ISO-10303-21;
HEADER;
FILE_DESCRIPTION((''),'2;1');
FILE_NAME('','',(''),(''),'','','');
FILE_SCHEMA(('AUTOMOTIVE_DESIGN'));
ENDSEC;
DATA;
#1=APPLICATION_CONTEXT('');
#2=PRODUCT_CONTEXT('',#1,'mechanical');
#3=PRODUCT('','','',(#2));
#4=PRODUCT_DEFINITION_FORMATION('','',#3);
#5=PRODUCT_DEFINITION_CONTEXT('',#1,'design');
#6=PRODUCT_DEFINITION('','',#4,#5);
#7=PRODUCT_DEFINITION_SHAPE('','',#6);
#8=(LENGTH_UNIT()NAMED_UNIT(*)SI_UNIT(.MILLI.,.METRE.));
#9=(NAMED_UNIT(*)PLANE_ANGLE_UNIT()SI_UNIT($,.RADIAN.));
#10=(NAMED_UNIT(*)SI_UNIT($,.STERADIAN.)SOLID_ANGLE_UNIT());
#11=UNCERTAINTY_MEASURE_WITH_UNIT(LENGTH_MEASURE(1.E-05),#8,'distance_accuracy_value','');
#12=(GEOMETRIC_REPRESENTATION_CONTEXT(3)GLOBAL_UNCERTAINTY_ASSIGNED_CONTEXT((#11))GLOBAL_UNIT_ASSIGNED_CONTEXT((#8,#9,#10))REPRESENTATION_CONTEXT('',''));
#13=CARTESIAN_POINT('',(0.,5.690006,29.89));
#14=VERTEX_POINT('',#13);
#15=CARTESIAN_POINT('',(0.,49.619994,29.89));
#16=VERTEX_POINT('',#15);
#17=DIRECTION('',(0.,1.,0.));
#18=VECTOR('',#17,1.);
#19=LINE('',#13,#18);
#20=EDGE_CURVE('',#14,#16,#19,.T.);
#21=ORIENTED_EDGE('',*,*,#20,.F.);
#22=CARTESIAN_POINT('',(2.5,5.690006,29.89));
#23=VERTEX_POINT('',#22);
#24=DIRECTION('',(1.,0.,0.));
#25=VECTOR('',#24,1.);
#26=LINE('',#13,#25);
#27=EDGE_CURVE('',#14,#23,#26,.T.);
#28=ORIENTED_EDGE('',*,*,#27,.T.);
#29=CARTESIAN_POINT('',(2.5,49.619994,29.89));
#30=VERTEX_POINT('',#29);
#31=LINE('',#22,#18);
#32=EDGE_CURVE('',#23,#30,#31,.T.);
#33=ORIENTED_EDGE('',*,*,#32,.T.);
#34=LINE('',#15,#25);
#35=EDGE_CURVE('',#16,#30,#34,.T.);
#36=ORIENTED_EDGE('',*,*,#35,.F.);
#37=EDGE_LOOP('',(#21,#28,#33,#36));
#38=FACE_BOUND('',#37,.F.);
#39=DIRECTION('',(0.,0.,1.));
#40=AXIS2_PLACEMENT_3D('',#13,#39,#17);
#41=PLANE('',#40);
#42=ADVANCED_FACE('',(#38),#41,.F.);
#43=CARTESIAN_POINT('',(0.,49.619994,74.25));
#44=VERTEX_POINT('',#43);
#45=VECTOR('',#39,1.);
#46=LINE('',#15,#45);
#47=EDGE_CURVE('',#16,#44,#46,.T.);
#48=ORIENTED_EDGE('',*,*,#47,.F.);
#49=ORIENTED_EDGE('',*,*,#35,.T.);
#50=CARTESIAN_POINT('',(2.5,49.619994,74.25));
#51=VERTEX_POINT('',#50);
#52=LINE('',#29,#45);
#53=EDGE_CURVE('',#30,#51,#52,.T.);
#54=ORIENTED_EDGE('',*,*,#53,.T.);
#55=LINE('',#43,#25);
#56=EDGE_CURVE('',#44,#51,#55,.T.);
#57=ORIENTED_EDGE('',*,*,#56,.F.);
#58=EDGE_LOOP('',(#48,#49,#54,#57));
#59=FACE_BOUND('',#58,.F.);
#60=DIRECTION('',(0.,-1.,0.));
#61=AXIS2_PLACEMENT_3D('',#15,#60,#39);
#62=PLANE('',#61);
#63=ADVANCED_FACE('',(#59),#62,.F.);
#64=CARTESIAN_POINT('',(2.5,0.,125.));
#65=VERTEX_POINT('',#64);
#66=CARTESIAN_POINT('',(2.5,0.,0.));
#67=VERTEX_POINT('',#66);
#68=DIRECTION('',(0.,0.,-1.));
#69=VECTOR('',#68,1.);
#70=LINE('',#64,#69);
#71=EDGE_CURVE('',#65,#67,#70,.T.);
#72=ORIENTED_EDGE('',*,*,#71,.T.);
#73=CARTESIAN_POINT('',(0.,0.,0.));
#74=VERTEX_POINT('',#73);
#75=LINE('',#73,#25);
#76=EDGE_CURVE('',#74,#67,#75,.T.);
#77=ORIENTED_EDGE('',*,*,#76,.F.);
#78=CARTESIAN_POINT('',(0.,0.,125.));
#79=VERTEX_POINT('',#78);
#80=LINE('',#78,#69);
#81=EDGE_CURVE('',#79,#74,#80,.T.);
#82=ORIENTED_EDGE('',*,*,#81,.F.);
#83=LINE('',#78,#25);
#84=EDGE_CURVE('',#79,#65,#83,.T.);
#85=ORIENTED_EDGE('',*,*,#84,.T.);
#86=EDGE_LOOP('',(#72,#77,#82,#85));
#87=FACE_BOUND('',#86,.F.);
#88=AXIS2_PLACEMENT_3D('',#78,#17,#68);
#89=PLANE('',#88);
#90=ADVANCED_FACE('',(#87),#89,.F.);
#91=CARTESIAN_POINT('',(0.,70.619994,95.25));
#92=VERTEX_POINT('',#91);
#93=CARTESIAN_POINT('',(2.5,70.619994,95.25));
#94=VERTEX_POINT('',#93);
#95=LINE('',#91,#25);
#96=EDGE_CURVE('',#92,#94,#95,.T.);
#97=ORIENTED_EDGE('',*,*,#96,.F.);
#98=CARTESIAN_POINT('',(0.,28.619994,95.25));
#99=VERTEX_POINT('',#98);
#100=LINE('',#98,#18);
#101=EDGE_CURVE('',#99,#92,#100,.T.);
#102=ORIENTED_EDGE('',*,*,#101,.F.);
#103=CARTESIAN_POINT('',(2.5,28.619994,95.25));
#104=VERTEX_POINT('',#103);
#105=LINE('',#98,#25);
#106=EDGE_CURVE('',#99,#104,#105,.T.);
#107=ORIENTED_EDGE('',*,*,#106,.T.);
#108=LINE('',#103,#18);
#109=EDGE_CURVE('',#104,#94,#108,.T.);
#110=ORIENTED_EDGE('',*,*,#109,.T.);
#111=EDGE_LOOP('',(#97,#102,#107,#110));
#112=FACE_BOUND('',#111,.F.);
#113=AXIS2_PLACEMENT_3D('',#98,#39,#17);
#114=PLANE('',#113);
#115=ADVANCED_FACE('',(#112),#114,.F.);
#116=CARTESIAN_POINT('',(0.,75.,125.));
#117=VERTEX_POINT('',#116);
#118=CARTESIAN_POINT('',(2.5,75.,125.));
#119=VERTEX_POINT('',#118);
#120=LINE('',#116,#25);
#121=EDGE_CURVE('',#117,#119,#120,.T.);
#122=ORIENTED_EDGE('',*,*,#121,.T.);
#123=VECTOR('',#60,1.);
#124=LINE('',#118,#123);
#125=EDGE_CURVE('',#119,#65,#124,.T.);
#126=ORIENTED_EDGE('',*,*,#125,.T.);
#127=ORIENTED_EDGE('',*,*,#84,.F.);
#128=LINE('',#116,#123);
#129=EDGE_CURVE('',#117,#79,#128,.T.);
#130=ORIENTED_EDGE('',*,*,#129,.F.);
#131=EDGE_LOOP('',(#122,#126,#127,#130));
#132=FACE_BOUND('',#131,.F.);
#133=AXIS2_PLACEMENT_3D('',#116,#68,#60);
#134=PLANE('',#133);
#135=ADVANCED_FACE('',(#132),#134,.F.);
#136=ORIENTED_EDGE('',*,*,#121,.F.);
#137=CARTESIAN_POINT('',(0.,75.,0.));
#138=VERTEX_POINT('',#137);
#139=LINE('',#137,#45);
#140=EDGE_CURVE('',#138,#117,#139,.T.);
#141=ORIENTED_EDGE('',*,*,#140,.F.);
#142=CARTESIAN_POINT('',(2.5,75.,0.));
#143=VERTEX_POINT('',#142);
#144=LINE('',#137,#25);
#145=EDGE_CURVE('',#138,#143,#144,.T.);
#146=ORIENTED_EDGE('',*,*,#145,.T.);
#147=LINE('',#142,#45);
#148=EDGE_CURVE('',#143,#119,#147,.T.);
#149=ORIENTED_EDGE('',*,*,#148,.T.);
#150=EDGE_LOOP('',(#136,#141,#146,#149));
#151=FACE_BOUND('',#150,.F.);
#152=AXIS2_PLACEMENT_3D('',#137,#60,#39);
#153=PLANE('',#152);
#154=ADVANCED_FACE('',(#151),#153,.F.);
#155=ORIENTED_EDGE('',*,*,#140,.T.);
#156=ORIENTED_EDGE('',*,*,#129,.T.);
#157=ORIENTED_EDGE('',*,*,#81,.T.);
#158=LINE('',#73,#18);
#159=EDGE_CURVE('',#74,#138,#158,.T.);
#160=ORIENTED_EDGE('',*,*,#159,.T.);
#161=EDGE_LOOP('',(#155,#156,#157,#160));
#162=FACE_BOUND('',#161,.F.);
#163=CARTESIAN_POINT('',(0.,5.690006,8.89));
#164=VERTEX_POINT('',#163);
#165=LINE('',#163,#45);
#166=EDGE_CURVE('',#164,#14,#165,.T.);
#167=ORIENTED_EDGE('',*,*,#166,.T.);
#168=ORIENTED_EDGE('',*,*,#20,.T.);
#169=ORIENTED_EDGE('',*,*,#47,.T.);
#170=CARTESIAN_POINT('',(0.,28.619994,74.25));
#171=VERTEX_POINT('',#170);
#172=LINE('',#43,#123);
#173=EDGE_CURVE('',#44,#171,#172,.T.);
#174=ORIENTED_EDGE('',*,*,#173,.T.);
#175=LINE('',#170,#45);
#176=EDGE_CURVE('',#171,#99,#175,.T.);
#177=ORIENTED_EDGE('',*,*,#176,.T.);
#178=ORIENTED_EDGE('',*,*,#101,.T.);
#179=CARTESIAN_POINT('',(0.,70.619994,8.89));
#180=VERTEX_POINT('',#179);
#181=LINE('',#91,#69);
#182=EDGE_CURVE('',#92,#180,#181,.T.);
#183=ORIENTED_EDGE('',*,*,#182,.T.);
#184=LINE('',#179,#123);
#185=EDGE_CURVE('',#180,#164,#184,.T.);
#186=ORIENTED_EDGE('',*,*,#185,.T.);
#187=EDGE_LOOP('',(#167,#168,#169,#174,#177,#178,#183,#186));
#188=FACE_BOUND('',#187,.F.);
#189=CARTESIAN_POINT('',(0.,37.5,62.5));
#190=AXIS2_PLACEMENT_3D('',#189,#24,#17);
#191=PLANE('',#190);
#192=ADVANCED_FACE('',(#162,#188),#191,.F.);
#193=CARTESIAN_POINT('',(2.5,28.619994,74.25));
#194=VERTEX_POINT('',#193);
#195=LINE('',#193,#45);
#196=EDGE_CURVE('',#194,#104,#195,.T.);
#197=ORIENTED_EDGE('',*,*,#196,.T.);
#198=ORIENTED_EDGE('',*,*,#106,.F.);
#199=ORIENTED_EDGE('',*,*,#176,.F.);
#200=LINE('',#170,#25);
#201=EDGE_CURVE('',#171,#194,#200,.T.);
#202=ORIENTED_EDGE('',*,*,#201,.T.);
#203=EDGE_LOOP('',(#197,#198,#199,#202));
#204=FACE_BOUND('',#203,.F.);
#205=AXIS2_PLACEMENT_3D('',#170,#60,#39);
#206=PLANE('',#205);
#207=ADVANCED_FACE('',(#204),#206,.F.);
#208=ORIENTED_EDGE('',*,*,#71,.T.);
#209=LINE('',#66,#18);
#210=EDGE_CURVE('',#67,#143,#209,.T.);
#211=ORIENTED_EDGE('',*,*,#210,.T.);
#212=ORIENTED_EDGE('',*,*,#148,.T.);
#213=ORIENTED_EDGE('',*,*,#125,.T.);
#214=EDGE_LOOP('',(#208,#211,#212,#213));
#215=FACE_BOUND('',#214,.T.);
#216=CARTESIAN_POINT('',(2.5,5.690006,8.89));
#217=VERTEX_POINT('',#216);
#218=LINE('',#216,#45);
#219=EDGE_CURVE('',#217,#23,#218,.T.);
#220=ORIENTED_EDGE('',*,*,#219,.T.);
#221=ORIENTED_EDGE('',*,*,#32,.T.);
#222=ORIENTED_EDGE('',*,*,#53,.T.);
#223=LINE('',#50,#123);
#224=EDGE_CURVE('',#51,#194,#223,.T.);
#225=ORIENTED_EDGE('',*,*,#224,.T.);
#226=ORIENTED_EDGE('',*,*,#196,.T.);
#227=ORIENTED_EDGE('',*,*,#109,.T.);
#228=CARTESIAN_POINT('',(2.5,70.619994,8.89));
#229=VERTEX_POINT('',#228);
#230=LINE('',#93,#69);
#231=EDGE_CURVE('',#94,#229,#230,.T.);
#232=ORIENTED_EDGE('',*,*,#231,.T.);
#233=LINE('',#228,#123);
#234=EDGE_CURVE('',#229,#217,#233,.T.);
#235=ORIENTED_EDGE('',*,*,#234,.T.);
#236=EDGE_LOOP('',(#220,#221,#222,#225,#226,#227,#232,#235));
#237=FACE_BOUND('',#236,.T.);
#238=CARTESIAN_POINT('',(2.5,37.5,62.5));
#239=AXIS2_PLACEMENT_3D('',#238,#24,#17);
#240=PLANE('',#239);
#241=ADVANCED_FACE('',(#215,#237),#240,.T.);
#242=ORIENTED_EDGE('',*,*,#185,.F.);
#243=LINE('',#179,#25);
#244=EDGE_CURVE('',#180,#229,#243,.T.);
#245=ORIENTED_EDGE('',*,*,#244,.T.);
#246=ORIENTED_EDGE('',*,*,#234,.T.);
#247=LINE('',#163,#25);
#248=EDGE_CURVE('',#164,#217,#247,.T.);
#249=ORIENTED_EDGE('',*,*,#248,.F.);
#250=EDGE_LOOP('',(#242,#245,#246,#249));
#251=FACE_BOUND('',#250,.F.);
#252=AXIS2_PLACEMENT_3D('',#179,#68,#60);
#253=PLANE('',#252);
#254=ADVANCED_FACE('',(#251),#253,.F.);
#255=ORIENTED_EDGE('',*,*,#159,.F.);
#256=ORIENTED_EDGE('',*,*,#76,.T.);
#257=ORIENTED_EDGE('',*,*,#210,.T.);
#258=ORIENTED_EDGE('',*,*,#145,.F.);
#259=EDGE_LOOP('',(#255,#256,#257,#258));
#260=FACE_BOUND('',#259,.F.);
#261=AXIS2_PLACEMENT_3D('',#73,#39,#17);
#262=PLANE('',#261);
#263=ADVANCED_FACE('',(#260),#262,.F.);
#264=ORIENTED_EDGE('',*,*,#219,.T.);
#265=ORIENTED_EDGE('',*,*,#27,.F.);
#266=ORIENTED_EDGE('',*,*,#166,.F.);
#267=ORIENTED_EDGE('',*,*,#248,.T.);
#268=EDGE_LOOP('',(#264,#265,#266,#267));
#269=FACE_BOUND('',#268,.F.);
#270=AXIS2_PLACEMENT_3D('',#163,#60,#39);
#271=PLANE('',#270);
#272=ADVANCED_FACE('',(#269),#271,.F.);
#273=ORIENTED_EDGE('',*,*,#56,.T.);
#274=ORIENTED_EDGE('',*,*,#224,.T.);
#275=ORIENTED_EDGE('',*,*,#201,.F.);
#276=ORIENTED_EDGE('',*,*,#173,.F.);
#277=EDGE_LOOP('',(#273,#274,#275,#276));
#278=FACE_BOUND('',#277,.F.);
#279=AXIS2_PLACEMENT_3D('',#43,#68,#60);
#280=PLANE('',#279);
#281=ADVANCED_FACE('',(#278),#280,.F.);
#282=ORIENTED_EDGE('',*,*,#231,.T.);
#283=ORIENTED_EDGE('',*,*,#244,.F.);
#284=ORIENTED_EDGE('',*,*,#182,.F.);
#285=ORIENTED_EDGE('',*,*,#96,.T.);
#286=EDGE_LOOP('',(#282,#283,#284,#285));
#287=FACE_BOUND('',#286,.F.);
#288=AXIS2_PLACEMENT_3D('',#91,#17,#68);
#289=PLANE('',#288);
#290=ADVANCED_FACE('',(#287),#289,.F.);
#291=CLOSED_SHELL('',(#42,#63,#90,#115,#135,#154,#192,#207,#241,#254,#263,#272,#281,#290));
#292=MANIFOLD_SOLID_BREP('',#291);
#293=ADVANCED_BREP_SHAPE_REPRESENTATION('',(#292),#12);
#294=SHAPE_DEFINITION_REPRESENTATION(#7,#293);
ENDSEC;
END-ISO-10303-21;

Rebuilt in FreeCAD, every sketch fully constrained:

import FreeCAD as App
import Part
import Sketcher

V = App.Vector

doc = App.newDocument("Part")
body = doc.addObject("PartDesign::Body", "Body")

# Sketch on YZ plane
sketch1 = doc.addObject("Sketcher::SketchObject", "Sketch")
body.addObject(sketch1)
sketch1.AttachmentSupport = (doc.YZ_Plane, [""])
sketch1.MapMode = "FlatFace"
sketch1.addGeometry([
    Part.LineSegment(V(0, 125, 0), V(0, 0, 0)),  # 0
    Part.LineSegment(V(0, 0, 0), V(75, 0, 0)),  # 1
    Part.LineSegment(V(75, 0, 0), V(75, 125, 0)),  # 2
    Part.LineSegment(V(75, 125, 0), V(0, 125, 0)),  # 3
    Part.LineSegment(V(71, 9, 0), V(6, 9, 0)),  # 4
    Part.LineSegment(V(6, 9, 0), V(6, 30, 0)),  # 5
    Part.LineSegment(V(6, 30, 0), V(50, 30, 0)),  # 6
    Part.LineSegment(V(50, 30, 0), V(50, 74, 0)),  # 7
    Part.LineSegment(V(50, 74, 0), V(29, 74, 0)),  # 8
    Part.LineSegment(V(29, 74, 0), V(29, 95, 0)),  # 9
    Part.LineSegment(V(29, 95, 0), V(71, 95, 0)),  # 10
    Part.LineSegment(V(71, 95, 0), V(71, 9, 0)),  # 11
], False)
sketch1.addConstraint([
    Sketcher.Constraint("Coincident", 0, 2, 1, 1),
    Sketcher.Constraint("Coincident", 1, 2, 2, 1),
    Sketcher.Constraint("Coincident", 2, 2, 3, 1),
    Sketcher.Constraint("Coincident", 3, 2, 0, 1),
    Sketcher.Constraint("Coincident", 4, 2, 5, 1),
    Sketcher.Constraint("Coincident", 5, 2, 6, 1),
    Sketcher.Constraint("Coincident", 6, 2, 7, 1),
    Sketcher.Constraint("Coincident", 7, 2, 8, 1),
    Sketcher.Constraint("Coincident", 8, 2, 9, 1),
    Sketcher.Constraint("Coincident", 9, 2, 10, 1),
    Sketcher.Constraint("Coincident", 10, 2, 11, 1),
    Sketcher.Constraint("Coincident", 11, 2, 4, 1),
    Sketcher.Constraint("Vertical", 0),
    Sketcher.Constraint("Horizontal", 1),
    Sketcher.Constraint("Vertical", 2),
    Sketcher.Constraint("Horizontal", 3),
    Sketcher.Constraint("Horizontal", 4),
    Sketcher.Constraint("Vertical", 5),
    Sketcher.Constraint("Horizontal", 6),
    Sketcher.Constraint("Vertical", 7),
    Sketcher.Constraint("Horizontal", 8),
    Sketcher.Constraint("Vertical", 9),
    Sketcher.Constraint("Horizontal", 10),
    Sketcher.Constraint("Vertical", 11),
    Sketcher.Constraint("Coincident", 0, 2, -1, 1),
    Sketcher.Constraint("Equal", 8, 5),
    Sketcher.Constraint("Equal", 5, 9),
    Sketcher.Constraint("DistanceX", 1, 1, 1, 2, 75.0),
    Sketcher.Constraint("DistanceX", 8, 2, 8, 1, 21.0),
    Sketcher.Constraint("DistanceX", 10, 1, 10, 2, 42.0),
    Sketcher.Constraint("DistanceY", 0, 2, 0, 1, 125.0),
    Sketcher.Constraint("DistanceY", 7, 1, 7, 2, 44.36),
    Sketcher.Constraint("DistanceY", -1, 1, 4, 2, 8.89),
    Sketcher.Constraint("DistanceX", 4, 2, 4, 1, 64.929988),
    Sketcher.Constraint("DistanceX", -1, 1, 4, 2, 5.690006),
])
pad1 = doc.addObject("PartDesign::Pad", "Pad")
body.addObject(pad1)
pad1.Profile = sketch1
pad1.Length = 2.5

doc.recompute()
